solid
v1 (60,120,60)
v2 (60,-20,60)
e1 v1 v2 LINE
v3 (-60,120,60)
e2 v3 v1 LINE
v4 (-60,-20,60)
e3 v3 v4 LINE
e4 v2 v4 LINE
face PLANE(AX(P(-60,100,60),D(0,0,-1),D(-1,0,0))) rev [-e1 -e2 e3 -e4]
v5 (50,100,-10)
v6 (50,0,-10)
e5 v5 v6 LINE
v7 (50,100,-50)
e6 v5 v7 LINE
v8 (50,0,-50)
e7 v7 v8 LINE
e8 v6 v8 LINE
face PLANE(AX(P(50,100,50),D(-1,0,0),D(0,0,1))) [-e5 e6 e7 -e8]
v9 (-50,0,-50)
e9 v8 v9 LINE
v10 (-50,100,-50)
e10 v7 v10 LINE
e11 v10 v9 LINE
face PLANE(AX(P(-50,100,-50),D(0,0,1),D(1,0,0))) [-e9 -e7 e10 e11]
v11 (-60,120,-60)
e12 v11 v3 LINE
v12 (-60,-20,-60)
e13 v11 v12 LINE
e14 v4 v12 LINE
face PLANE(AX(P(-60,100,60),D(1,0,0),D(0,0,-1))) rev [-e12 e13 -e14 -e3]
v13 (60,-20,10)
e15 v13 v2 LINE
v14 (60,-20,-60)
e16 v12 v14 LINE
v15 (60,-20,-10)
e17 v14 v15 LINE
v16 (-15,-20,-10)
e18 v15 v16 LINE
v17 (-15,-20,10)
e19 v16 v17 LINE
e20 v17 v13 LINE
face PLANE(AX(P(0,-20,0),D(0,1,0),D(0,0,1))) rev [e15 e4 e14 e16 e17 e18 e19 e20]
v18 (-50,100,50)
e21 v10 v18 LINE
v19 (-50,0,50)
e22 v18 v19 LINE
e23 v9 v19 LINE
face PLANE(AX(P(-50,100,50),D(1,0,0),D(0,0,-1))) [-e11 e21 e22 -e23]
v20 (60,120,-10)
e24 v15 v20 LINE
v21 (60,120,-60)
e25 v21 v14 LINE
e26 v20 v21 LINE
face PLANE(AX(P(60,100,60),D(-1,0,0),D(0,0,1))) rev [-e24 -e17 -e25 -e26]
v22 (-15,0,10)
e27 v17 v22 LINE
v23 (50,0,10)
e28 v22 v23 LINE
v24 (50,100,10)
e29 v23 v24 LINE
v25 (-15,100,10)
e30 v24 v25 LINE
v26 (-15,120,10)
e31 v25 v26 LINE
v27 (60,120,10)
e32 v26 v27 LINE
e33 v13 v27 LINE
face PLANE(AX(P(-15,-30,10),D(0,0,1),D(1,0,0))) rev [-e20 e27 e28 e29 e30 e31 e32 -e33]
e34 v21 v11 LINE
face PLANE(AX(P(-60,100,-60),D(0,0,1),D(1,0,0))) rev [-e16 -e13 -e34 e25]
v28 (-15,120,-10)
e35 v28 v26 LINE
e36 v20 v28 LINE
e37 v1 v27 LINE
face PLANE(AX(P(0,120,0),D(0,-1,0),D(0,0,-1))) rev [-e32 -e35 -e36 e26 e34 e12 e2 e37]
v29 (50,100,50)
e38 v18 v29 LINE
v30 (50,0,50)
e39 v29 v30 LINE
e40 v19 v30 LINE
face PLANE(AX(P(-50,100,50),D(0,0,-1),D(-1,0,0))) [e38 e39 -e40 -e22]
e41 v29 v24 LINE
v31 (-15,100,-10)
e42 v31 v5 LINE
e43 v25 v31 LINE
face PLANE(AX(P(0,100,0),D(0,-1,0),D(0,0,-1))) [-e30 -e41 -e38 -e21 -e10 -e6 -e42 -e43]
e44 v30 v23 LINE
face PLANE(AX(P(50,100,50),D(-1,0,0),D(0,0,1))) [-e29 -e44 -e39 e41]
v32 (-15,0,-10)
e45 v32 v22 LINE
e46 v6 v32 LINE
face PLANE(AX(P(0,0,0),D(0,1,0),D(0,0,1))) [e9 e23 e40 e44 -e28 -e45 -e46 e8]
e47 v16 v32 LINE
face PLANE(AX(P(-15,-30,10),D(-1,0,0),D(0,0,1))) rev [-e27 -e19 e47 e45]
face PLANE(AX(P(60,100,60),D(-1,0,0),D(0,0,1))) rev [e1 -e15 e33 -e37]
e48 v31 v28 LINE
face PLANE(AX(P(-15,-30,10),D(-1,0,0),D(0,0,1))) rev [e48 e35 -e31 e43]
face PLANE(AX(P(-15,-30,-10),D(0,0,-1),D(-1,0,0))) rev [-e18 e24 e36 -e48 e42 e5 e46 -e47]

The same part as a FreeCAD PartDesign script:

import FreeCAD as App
import Part
import Sketcher
from FreeCAD import Vector

doc = App.newDocument("Part")
body = doc.addObject("PartDesign::Body", "Body")

# Sketch on XZ plane
sketch1 = doc.addObject("Sketcher::SketchObject", "Sketch")
body.addObject(sketch1)
sketch1.AttachmentSupport = (doc.XZ_Plane, [""])
sketch1.MapMode = "FlatFace"
sketch1.addGeometry([
    Part.LineSegment(Vector(-60, -60, 0), Vector(-60, 60, 0)),  # 0
    Part.LineSegment(Vector(-60, 60, 0), Vector(60, 60, 0)),  # 1
    Part.LineSegment(Vector(60, 60, 0), Vector(60, -60, 0)),  # 2
    Part.LineSegment(Vector(60, -60, 0), Vector(-60, -60, 0)),  # 3
    Part.LineSegment(Vector(50, 50, 0), Vector(-50, 50, 0)),  # 4
    Part.LineSegment(Vector(-50, 50, 0), Vector(-50, -50, 0)),  # 5
    Part.LineSegment(Vector(-50, -50, 0), Vector(50, -50, 0)),  # 6
    Part.LineSegment(Vector(50, -50, 0), Vector(50, 50, 0)),  # 7
], False)
sketch1.addConstraint([
    Sketcher.Constraint("Coincident", 0, 2, 1, 1),
    Sketcher.Constraint("Coincident", 1, 2, 2, 1),
    Sketcher.Constraint("Coincident", 2, 2, 3, 1),
    Sketcher.Constraint("Coincident", 3, 2, 0, 1),
    Sketcher.Constraint("Coincident", 4, 2, 5, 1),
    Sketcher.Constraint("Coincident", 5, 2, 6, 1),
    Sketcher.Constraint("Coincident", 6, 2, 7, 1),
    Sketcher.Constraint("Coincident", 7, 2, 4, 1),
    Sketcher.Constraint("Vertical", 0),
    Sketcher.Constraint("Horizontal", 1),
    Sketcher.Constraint("Vertical", 2),
    Sketcher.Constraint("Horizontal", 3),
    Sketcher.Constraint("Horizontal", 4),
    Sketcher.Constraint("Vertical", 5),
    Sketcher.Constraint("Horizontal", 6),
    Sketcher.Constraint("Vertical", 7),
    Sketcher.Constraint("Symmetric", 0, 2, 2, 2, -1, 1),
    Sketcher.Constraint("Symmetric", 4, 2, 6, 2, -1, 1),
    Sketcher.Constraint("Equal", 3, 0),
    Sketcher.Constraint("Equal", 6, 5),
    Sketcher.Constraint("DistanceX", 1, 1, 1, 2, 120.0),
    Sketcher.Constraint("DistanceX", 4, 2, 4, 1, 100.0),
])
pad1 = doc.addObject("PartDesign::Pad", "Pad")
body.addObject(pad1)
pad1.Profile = sketch1
pad1.Length = 100
pad1.Reversed = True

# Sketch on XZ plane
sketch2 = doc.addObject("Sketcher::SketchObject", "Sketch001")
body.addObject(sketch2)
sketch2.AttachmentSupport = (doc.XZ_Plane, [""])
sketch2.MapMode = "FlatFace"
sketch2.addGeometry([
    Part.LineSegment(Vector(-60, 60, 0), Vector(-60, -60, 0)),
    Part.LineSegment(Vector(-60, -60, 0), Vector(60, -60, 0)),
    Part.LineSegment(Vector(60, -60, 0), Vector(60, 60, 0)),
    Part.LineSegment(Vector(60, 60, 0), Vector(-60, 60, 0)),
], False)
sketch2.addConstraint([
    Sketcher.Constraint("Coincident", 0, 2, 1, 1),
    Sketcher.Constraint("Coincident", 1, 2, 2, 1),
    Sketcher.Constraint("Coincident", 2, 2, 3, 1),
    Sketcher.Constraint("Coincident", 3, 2, 0, 1),
    Sketcher.Constraint("Vertical", 0),
    Sketcher.Constraint("Horizontal", 1),
    Sketcher.Constraint("Vertical", 2),
    Sketcher.Constraint("Horizontal", 3),
    Sketcher.Constraint("Symmetric", 0, 2, 2, 2, -1, 1),
    Sketcher.Constraint("Equal", 3, 0),
    Sketcher.Constraint("DistanceX", 1, 1, 1, 2, 120.0),
])
pad2 = doc.addObject("PartDesign::Pad", "Pad001")
body.addObject(pad2)
pad2.Profile = sketch2
pad2.Length = 20

# Sketch on XZ plane
sketch3 = doc.addObject("Sketcher::SketchObject", "Sketch002")
body.addObject(sketch3)
sketch3.AttachmentSupport = (doc.XZ_Plane, [""])
sketch3.MapMode = "FlatFace"
sketch3.AttachmentOffset = App.Placement(Vector(0, 0, -100), App.Rotation())
sketch3.addGeometry([
    Part.LineSegment(Vector(-60, -60, 0), Vector(-60, 60, 0)),
    Part.LineSegment(Vector(-60, 60, 0), Vector(60, 60, 0)),
    Part.LineSegment(Vector(60, 60, 0), Vector(60, -60, 0)),
    Part.LineSegment(Vector(60, -60, 0), Vector(-60, -60, 0)),
], False)
sketch3.addConstraint([
    Sketcher.Constraint("Coincident", 0, 2, 1, 1),
    Sketcher.Constraint("Coincident", 1, 2, 2, 1),
    Sketcher.Constraint("Coincident", 2, 2, 3, 1),
    Sketcher.Constraint("Coincident", 3, 2, 0, 1),
    Sketcher.Constraint("Vertical", 0),
    Sketcher.Constraint("Horizontal", 1),
    Sketcher.Constraint("Vertical", 2),
    Sketcher.Constraint("Horizontal", 3),
    Sketcher.Constraint("Symmetric", 0, 2, 2, 2, -1, 1),
    Sketcher.Constraint("Equal", 3, 0),
    Sketcher.Constraint("DistanceX", 1, 1, 1, 2, 120.0),
])
pad3 = doc.addObject("PartDesign::Pad", "Pad002")
body.addObject(pad3)
pad3.Profile = sketch3
pad3.Length = 20
pad3.Reversed = True

# Sketch on XZ plane
sketch4 = doc.addObject("Sketcher::SketchObject", "Sketch003")
body.addObject(sketch4)
sketch4.AttachmentSupport = (doc.XZ_Plane, [""])
sketch4.MapMode = "FlatFace"
sketch4.AttachmentOffset = App.Placement(Vector(0, 0, -120), App.Rotation())
sketch4.addGeometry([
    Part.LineSegment(Vector(-15, -10, 0), Vector(-15, 10, 0)),
    Part.LineSegment(Vector(-15, 10, 0), Vector(60, 10, 0)),
    Part.LineSegment(Vector(60, 10, 0), Vector(60, -10, 0)),
    Part.LineSegment(Vector(60, -10, 0), Vector(-15, -10, 0)),
], False)
sketch4.addConstraint([
    Sketcher.Constraint("Coincident", 0, 2, 1, 1),
    Sketcher.Constraint("Coincident", 1, 2, 2, 1),
    Sketcher.Constraint("Coincident", 2, 2, 3, 1),
    Sketcher.Constraint("Coincident", 3, 2, 0, 1),
    Sketcher.Constraint("Vertical", 0),
    Sketcher.Constraint("Horizontal", 1),
    Sketcher.Constraint("Vertical", 2),
    Sketcher.Constraint("Horizontal", 3),
    Sketcher.Constraint("DistanceX", 1, 1, 1, 2, 75.0),
    Sketcher.Constraint("DistanceY", 0, 1, 0, 2, 20.0),
    Sketcher.Constraint("DistanceX", 0, 2, -1, 1, 15.0),
    Sketcher.Constraint("DistanceY", -1, 1, 0, 2, 10.0),
])
pocket1 = doc.addObject("PartDesign::Pocket", "Pocket")
body.addObject(pocket1)
pocket1.Profile = sketch4
pocket1.Length = 150
pocket1.Reversed = True

doc.recompute()
